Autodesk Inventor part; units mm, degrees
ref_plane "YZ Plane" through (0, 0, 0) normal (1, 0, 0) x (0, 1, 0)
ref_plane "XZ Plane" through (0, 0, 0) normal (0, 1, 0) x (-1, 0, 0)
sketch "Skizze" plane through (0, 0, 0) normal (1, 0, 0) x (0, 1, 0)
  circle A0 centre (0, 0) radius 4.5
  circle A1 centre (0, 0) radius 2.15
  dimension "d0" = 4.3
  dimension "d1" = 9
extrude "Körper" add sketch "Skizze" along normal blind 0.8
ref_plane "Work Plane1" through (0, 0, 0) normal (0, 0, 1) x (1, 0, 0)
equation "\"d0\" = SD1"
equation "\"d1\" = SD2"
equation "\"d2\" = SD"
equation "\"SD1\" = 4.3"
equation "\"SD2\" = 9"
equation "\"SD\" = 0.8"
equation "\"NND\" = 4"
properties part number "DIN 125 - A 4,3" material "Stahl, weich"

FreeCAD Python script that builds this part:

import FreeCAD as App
import Part
import Sketcher

V = App.Vector

doc = App.newDocument("Part")
body = doc.addObject("PartDesign::Body", "Body")

sketch1 = body.newObject("Sketcher::SketchObject", "Sketch")
sketch1.AttachmentSupport = (doc.getObject("YZ_Plane"), [""])
sketch1.MapMode = "FlatFace"
sketch1.addGeometry([
    Part.Circle(V(0, 0, 0), V(0, 0, 1), 4.5),
    Part.Circle(V(0, 0, 0), V(0, 0, 1), 2.15),
], False)
sketch1.addConstraint([
    Sketcher.Constraint("Coincident", 0, 3, -1, 1),
    Sketcher.Constraint("Coincident", 1, 3, -1, 1),
    Sketcher.Constraint("Diameter", 0, 9.0),
    Sketcher.Constraint("Diameter", 1, 4.3),
])
pad1 = body.newObject("PartDesign::Pad", "Pad")
pad1.Profile = sketch1
pad1.Length = 0.8

doc.recompute()
